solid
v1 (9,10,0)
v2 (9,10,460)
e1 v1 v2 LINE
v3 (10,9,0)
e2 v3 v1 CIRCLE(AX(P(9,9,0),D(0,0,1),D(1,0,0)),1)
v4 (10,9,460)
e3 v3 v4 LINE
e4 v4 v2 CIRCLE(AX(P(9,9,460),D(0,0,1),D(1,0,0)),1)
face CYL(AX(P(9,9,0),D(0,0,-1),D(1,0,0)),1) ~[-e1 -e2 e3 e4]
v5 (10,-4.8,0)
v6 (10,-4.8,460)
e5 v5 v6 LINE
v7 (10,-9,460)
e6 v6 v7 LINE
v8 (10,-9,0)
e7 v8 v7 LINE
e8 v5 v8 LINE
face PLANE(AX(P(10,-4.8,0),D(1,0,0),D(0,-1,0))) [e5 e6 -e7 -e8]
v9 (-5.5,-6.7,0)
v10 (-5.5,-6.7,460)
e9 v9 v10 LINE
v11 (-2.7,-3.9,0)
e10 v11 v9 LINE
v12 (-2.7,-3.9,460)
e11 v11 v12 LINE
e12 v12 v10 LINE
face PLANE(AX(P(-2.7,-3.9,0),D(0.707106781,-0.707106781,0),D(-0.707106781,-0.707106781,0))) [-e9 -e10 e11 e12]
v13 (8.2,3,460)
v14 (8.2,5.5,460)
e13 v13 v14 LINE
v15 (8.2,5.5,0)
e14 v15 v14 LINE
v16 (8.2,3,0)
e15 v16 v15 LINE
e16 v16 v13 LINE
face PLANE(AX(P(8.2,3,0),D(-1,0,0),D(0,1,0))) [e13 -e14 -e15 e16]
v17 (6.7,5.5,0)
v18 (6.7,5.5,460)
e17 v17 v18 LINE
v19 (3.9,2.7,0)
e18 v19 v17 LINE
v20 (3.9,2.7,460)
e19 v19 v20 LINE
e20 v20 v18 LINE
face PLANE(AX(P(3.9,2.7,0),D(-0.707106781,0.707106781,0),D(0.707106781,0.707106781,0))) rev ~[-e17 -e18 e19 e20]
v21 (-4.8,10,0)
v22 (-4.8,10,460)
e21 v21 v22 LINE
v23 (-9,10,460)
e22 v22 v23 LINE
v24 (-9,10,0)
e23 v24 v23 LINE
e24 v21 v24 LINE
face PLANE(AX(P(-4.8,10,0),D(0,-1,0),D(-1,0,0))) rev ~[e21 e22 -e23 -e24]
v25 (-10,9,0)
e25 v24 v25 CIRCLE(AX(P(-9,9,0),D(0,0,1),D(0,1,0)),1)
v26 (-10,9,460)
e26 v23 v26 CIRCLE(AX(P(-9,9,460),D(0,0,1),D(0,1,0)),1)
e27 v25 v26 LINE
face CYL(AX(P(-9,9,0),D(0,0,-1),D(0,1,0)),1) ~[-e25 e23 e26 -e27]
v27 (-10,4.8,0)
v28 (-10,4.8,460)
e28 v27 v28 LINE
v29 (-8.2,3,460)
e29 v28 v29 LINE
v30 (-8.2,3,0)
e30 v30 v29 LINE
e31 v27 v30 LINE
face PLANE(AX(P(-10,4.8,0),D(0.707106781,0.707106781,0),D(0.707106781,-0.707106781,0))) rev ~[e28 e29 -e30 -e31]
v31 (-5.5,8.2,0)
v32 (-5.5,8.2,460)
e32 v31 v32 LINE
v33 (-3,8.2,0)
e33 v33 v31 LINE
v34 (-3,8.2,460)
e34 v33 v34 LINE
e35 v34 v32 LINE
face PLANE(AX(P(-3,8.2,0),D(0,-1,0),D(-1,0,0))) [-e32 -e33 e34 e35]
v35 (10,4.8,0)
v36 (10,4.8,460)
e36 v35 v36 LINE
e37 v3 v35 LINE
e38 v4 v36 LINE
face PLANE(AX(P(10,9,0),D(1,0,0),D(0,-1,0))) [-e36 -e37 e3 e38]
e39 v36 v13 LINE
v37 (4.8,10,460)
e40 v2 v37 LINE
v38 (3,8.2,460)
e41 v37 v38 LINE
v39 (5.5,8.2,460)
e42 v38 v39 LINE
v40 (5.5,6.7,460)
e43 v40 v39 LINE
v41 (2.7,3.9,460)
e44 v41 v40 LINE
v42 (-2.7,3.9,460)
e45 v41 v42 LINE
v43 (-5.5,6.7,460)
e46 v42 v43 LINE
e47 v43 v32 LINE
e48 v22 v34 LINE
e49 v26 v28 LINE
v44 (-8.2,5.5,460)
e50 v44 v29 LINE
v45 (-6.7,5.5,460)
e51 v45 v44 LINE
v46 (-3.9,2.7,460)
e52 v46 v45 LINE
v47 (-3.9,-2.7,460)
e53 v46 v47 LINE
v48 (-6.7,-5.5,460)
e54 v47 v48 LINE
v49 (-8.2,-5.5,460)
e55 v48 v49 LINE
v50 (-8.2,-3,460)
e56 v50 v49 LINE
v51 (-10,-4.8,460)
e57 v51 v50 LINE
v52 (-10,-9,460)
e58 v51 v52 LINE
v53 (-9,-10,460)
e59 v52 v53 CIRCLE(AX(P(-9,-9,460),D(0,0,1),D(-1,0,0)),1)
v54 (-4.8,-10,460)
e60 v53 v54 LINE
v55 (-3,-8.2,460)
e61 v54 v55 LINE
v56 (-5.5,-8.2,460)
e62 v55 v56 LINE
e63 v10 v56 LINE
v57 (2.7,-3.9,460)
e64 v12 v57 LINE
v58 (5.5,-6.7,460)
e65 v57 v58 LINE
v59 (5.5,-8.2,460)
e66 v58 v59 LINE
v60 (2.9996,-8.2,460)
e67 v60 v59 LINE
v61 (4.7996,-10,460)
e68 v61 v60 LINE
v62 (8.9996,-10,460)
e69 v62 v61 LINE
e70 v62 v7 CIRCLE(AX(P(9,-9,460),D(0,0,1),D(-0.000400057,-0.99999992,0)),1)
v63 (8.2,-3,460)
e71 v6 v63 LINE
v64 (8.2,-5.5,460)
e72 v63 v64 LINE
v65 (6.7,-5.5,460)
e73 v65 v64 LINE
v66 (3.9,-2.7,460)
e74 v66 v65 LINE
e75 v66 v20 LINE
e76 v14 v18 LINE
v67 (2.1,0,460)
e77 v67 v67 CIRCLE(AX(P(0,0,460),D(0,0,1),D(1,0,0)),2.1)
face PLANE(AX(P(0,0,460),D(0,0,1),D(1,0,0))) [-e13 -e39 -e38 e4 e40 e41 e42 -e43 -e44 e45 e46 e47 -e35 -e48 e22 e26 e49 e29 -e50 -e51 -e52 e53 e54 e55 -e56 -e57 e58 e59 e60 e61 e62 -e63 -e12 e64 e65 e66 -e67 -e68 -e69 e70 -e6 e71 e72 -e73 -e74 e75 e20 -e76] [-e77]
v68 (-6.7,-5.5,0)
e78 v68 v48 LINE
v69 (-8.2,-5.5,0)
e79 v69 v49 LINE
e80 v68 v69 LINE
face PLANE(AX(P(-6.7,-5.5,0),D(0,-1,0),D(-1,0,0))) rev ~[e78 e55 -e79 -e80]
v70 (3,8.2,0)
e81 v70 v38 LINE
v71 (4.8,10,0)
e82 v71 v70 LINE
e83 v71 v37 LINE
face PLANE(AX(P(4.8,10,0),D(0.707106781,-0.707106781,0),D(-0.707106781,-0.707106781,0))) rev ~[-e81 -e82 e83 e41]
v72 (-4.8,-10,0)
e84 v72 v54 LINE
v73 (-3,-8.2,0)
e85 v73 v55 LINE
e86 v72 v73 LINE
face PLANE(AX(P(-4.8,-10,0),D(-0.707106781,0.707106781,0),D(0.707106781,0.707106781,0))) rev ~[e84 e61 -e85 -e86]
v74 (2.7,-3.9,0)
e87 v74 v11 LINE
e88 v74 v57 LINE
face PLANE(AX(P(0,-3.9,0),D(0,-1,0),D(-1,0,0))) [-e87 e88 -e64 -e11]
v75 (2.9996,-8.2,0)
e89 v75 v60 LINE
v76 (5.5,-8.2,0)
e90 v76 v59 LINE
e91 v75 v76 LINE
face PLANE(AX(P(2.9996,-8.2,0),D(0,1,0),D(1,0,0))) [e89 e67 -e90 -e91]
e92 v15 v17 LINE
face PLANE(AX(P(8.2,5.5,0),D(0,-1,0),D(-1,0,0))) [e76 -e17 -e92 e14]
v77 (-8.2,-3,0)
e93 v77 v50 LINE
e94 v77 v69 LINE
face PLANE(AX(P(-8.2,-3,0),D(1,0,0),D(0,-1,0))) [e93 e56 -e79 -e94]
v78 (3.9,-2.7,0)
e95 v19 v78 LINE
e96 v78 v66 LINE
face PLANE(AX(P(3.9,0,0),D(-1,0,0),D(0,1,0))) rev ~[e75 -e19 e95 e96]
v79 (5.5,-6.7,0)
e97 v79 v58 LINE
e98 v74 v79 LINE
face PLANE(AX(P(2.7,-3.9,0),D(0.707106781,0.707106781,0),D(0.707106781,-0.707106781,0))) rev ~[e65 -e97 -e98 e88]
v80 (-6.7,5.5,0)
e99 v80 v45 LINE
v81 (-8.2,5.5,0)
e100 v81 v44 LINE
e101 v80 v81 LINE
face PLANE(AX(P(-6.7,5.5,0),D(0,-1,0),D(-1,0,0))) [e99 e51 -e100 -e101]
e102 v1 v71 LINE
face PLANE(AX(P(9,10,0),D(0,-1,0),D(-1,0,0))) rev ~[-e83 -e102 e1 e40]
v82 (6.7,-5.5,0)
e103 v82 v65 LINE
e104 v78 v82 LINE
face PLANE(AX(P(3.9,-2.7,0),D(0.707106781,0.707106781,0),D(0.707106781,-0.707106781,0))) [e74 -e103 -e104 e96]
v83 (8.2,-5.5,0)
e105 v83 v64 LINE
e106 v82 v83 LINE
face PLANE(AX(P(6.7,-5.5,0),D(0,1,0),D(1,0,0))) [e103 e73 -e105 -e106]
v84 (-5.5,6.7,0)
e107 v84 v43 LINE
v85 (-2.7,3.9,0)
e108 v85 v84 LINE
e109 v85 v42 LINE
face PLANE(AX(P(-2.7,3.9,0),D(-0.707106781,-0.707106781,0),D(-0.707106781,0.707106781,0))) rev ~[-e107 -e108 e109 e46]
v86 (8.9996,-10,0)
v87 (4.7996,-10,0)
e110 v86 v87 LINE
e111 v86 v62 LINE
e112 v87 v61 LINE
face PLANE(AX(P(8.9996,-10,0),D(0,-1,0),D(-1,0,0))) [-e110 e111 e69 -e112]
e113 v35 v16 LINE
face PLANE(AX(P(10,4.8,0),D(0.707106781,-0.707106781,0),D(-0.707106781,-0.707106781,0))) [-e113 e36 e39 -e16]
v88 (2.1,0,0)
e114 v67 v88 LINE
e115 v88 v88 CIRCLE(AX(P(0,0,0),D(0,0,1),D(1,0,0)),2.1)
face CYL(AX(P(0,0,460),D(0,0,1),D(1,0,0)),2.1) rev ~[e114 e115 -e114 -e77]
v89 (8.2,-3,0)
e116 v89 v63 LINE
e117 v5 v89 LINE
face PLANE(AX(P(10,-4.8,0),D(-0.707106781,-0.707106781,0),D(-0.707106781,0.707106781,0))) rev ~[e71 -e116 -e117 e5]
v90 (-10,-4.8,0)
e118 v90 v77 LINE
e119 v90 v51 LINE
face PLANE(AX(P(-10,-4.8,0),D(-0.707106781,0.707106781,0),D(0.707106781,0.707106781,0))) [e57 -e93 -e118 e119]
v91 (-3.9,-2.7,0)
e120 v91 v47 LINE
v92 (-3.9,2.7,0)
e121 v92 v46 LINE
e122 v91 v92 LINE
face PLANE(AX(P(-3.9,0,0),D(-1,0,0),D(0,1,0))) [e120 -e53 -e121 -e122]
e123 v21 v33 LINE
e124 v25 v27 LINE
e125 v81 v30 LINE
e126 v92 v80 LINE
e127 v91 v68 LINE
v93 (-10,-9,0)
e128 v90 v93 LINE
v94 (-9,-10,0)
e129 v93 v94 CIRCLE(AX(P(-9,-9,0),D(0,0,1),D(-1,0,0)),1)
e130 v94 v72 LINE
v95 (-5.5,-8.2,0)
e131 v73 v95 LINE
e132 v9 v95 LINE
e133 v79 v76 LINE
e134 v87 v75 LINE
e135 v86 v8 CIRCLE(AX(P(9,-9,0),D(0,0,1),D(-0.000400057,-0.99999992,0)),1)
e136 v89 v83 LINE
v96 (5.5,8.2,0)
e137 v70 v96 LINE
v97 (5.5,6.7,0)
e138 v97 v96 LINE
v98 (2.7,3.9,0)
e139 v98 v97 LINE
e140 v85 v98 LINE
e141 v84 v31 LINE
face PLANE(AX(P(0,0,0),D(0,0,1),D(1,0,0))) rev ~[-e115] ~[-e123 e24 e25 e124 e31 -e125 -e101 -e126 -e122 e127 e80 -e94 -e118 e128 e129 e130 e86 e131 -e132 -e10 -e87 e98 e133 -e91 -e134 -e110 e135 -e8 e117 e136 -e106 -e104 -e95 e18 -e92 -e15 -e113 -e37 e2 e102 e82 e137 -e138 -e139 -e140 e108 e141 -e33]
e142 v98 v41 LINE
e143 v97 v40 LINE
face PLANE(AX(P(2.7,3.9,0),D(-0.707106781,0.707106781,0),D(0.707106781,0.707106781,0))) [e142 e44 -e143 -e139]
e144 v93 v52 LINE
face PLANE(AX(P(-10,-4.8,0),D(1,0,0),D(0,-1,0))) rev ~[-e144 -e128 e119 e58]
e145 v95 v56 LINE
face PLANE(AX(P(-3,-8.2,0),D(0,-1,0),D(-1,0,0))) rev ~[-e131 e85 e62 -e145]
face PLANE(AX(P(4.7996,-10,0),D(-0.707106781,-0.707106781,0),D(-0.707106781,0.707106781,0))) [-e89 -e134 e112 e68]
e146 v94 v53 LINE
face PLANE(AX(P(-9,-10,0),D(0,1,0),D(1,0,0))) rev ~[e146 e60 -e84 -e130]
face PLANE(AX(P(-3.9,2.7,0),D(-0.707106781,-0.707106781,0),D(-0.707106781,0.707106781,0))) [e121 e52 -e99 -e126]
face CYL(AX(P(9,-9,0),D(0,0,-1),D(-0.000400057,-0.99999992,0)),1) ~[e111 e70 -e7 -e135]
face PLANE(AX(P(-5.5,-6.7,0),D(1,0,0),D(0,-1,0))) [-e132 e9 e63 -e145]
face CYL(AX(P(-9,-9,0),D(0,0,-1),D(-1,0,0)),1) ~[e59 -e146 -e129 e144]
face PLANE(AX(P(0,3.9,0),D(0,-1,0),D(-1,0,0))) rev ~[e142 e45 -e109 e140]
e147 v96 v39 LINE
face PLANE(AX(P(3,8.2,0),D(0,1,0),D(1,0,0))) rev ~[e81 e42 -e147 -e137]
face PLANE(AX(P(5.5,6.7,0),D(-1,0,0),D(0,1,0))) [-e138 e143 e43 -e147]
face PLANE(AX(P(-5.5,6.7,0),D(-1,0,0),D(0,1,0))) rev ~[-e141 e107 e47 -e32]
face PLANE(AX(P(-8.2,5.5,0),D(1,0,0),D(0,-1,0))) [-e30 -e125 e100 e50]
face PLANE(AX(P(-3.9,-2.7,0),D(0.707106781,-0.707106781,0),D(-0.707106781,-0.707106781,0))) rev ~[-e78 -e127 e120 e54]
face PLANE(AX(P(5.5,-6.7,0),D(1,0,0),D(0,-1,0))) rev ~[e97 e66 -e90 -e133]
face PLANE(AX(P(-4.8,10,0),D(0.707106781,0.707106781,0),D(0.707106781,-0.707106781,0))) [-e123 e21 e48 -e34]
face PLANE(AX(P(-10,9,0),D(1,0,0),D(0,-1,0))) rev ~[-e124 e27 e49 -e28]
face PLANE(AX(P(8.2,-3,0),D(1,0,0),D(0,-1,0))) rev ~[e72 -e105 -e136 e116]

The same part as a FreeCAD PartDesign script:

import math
import FreeCAD as App
import Part
import Sketcher

V = App.Vector

doc = App.newDocument("Part")
body = doc.addObject("PartDesign::Body", "Body")

# Sketch on XY plane
sketch1 = body.newObject("Sketcher::SketchObject", "Sketch")
sketch1.AttachmentSupport = (doc.getObject("XY_Plane"), [""])
sketch1.MapMode = "FlatFace"
sketch1.addGeometry([
    Part.LineSegment(V(-3, 8.2, 0), V(-4.8, 10, 0)),  # 0
    Part.LineSegment(V(-4.8, 10, 0), V(-9, 10, 0)),  # 1
    Part.ArcOfCircle(Part.Circle(V(-9, 9, 0), V(0, 0, 1), 1), math.radians(90), math.radians(180)),  # 2
    Part.LineSegment(V(-10, 9, 0), V(-10, 4.8, 0)),  # 3
    Part.LineSegment(V(-10, 4.8, 0), V(-8.2, 3, 0)),  # 4
    Part.LineSegment(V(-8.2, 3, 0), V(-8.2, 5.5, 0)),  # 5
    Part.LineSegment(V(-8.2, 5.5, 0), V(-6.7, 5.5, 0)),  # 6
    Part.LineSegment(V(-6.7, 5.5, 0), V(-3.9, 2.7, 0)),  # 7
    Part.LineSegment(V(-3.9, 2.7, 0), V(-3.9, -2.7, 0)),  # 8
    Part.LineSegment(V(-3.9, -2.7, 0), V(-6.7, -5.5, 0)),  # 9
    Part.LineSegment(V(-6.7, -5.5, 0), V(-8.2, -5.5, 0)),  # 10
    Part.LineSegment(V(-8.2, -5.5, 0), V(-8.2, -3, 0)),  # 11
    Part.LineSegment(V(-8.2, -3, 0), V(-10, -4.8, 0)),  # 12
    Part.LineSegment(V(-10, -4.8, 0), V(-10, -9, 0)),  # 13
    Part.ArcOfCircle(Part.Circle(V(-9, -9, 0), V(0, 0, 1), 1), math.radians(180), math.radians(270)),  # 14
    Part.LineSegment(V(-9, -10, 0), V(-4.8, -10, 0)),  # 15
    Part.LineSegment(V(-4.8, -10, 0), V(-3, -8.2, 0)),  # 16
    Part.LineSegment(V(-3, -8.2, 0), V(-5.5, -8.2, 0)),  # 17
    Part.LineSegment(V(-5.5, -8.2, 0), V(-5.5, -6.7, 0)),  # 18
    Part.LineSegment(V(-5.5, -6.7, 0), V(-2.7, -3.9, 0)),  # 19
    Part.LineSegment(V(-2.7, -3.9, 0), V(2.7, -3.9, 0)),  # 20
    Part.LineSegment(V(2.7, -3.9, 0), V(5.5, -6.7, 0)),  # 21
    Part.LineSegment(V(5.5, -6.7, 0), V(5.5, -8.2, 0)),  # 22
    Part.LineSegment(V(5.5, -8.2, 0), V(3, -8.2, 0)),  # 23
    Part.LineSegment(V(3, -8.2, 0), V(4.8, -10, 0)),  # 24
    Part.LineSegment(V(4.8, -10, 0), V(9, -10, 0)),  # 25
    Part.ArcOfCircle(Part.Circle(V(9, -9, 0), V(0, 0, 1), 1), math.radians(-90), math.radians(0)),  # 26
    Part.LineSegment(V(10, -9, 0), V(10, -4.8, 0)),  # 27
    Part.LineSegment(V(10, -4.8, 0), V(8.2, -3, 0)),  # 28
    Part.LineSegment(V(8.2, -3, 0), V(8.2, -5.5, 0)),  # 29
    Part.LineSegment(V(8.2, -5.5, 0), V(6.7, -5.5, 0)),  # 30
    Part.LineSegment(V(6.7, -5.5, 0), V(3.9, -2.7, 0)),  # 31
    Part.LineSegment(V(3.9, -2.7, 0), V(3.9, 2.7, 0)),  # 32
    Part.LineSegment(V(3.9, 2.7, 0), V(6.7, 5.5, 0)),  # 33
    Part.LineSegment(V(6.7, 5.5, 0), V(8.2, 5.5, 0)),  # 34
    Part.LineSegment(V(8.2, 5.5, 0), V(8.2, 3, 0)),  # 35
    Part.LineSegment(V(8.2, 3, 0), V(10, 4.8, 0)),  # 36
    Part.LineSegment(V(10, 4.8, 0), V(10, 9, 0)),  # 37
    Part.ArcOfCircle(Part.Circle(V(9, 9, 0), V(0, 0, 1), 1), math.radians(0), math.radians(90)),  # 38
    Part.LineSegment(V(9, 10, 0), V(4.8, 10, 0)),  # 39
    Part.LineSegment(V(4.8, 10, 0), V(3, 8.2, 0)),  # 40
    Part.LineSegment(V(3, 8.2, 0), V(5.5, 8.2, 0)),  # 41
    Part.LineSegment(V(5.5, 8.2, 0), V(5.5, 6.7, 0)),  # 42
    Part.LineSegment(V(5.5, 6.7, 0), V(2.7, 3.9, 0)),  # 43
    Part.LineSegment(V(2.7, 3.9, 0), V(-2.7, 3.9, 0)),  # 44
    Part.LineSegment(V(-2.7, 3.9, 0), V(-5.5, 6.7, 0)),  # 45
    Part.LineSegment(V(-5.5, 6.7, 0), V(-5.5, 8.2, 0)),  # 46
    Part.LineSegment(V(-5.5, 8.2, 0), V(-3, 8.2, 0)),  # 47
], False)
sketch1.addConstraint([
    Sketcher.Constraint("Coincident", 0, 2, 1, 1),
    Sketcher.Constraint("Tangent", 1, 2, 2, 1),
    Sketcher.Constraint("Tangent", 2, 2, 3, 1),
    Sketcher.Constraint("Coincident", 3, 2, 4, 1),
    Sketcher.Constraint("Coincident", 4, 2, 5, 1),
    Sketcher.Constraint("Coincident", 5, 2, 6, 1),
    Sketcher.Constraint("Coincident", 6, 2, 7, 1),
    Sketcher.Constraint("Coincident", 7, 2, 8, 1),
    Sketcher.Constraint("Coincident", 8, 2, 9, 1),
    Sketcher.Constraint("Coincident", 9, 2, 10, 1),
    Sketcher.Constraint("Coincident", 10, 2, 11, 1),
    Sketcher.Constraint("Coincident", 11, 2, 12, 1),
    Sketcher.Constraint("Coincident", 12, 2, 13, 1),
    Sketcher.Constraint("Tangent", 13, 2, 14, 1),
    Sketcher.Constraint("Tangent", 14, 2, 15, 1),
    Sketcher.Constraint("Coincident", 15, 2, 16, 1),
    Sketcher.Constraint("Coincident", 16, 2, 17, 1),
    Sketcher.Constraint("Coincident", 17, 2, 18, 1),
    Sketcher.Constraint("Coincident", 18, 2, 19, 1),
    Sketcher.Constraint("Coincident", 19, 2, 20, 1),
    Sketcher.Constraint("Coincident", 20, 2, 21, 1),
    Sketcher.Constraint("Coincident", 21, 2, 22, 1),
    Sketcher.Constraint("Coincident", 22, 2, 23, 1),
    Sketcher.Constraint("Coincident", 23, 2, 24, 1),
    Sketcher.Constraint("Coincident", 24, 2, 25, 1),
    Sketcher.Constraint("Tangent", 25, 2, 26, 1),
    Sketcher.Constraint("Tangent", 26, 2, 27, 1),
    Sketcher.Constraint("Coincident", 27, 2, 28, 1),
    Sketcher.Constraint("Coincident", 28, 2, 29, 1),
    Sketcher.Constraint("Coincident", 29, 2, 30, 1),
    Sketcher.Constraint("Coincident", 30, 2, 31, 1),
    Sketcher.Constraint("Coincident", 31, 2, 32, 1),
    Sketcher.Constraint("Coincident", 32, 2, 33, 1),
    Sketcher.Constraint("Coincident", 33, 2, 34, 1),
    Sketcher.Constraint("Coincident", 34, 2, 35, 1),
    Sketcher.Constraint("Coincident", 35, 2, 36, 1),
    Sketcher.Constraint("Coincident", 36, 2, 37, 1),
    Sketcher.Constraint("Tangent", 37, 2, 38, 1),
    Sketcher.Constraint("Tangent", 38, 2, 39, 1),
    Sketcher.Constraint("Coincident", 39, 2, 40, 1),
    Sketcher.Constraint("Coincident", 40, 2, 41, 1),
    Sketcher.Constraint("Coincident", 41, 2, 42, 1),
    Sketcher.Constraint("Coincident", 42, 2, 43, 1),
    Sketcher.Constraint("Coincident", 43, 2, 44, 1),
    Sketcher.Constraint("Coincident", 44, 2, 45, 1),
    Sketcher.Constraint("Coincident", 45, 2, 46, 1),
    Sketcher.Constraint("Coincident", 46, 2, 47, 1),
    Sketcher.Constraint("Coincident", 47, 2, 0, 1),
    Sketcher.Constraint("Horizontal", 1),
    Sketcher.Constraint("Vertical", 3),
    Sketcher.Constraint("Vertical", 5),
    Sketcher.Constraint("Horizontal", 6),
    Sketcher.Constraint("Vertical", 8),
    Sketcher.Constraint("Horizontal", 10),
    Sketcher.Constraint("Vertical", 11),
    Sketcher.Constraint("Vertical", 13),
    Sketcher.Constraint("Horizontal", 15),
    Sketcher.Constraint("Horizontal", 17),
    Sketcher.Constraint("Vertical", 18),
    Sketcher.Constraint("Horizontal", 20),
    Sketcher.Constraint("Vertical", 22),
    Sketcher.Constraint("Horizontal", 23),
    Sketcher.Constraint("Horizontal", 25),
    Sketcher.Constraint("Vertical", 27),
    Sketcher.Constraint("Vertical", 29),
    Sketcher.Constraint("Horizontal", 30),
    Sketcher.Constraint("Vertical", 32),
    Sketcher.Constraint("Horizontal", 34),
    Sketcher.Constraint("Vertical", 35),
    Sketcher.Constraint("Vertical", 37),
    Sketcher.Constraint("Horizontal", 39),
    Sketcher.Constraint("Horizontal", 41),
    Sketcher.Constraint("Vertical", 42),
    Sketcher.Constraint("Horizontal", 44),
    Sketcher.Constraint("Vertical", 46),
    Sketcher.Constraint("Horizontal", 47),
    Sketcher.Constraint("Equal", 2, 14),
    Sketcher.Constraint("Equal", 14, 26),
    Sketcher.Constraint("Equal", 26, 38),
    Sketcher.Constraint("Symmetric", 2, 3, 26, 3, -1, 1),
    Sketcher.Constraint("Symmetric", 14, 3, 38, 3, -1, 1),
    Sketcher.Constraint("Symmetric", 4, 2, 28, 2, -1, 1),
    Sketcher.Constraint("Symmetric", 6, 2, 30, 2, -1, 1),
    Sketcher.Constraint("Symmetric", 7, 2, 31, 2, -1, 1),
    Sketcher.Constraint("Symmetric", 9, 2, 33, 2, -1, 1),
    Sketcher.Constraint("Symmetric", 11, 2, 35, 2, -1, 1),
    Sketcher.Constraint("Symmetric", 16, 2, 40, 2, -1, 1),
    Sketcher.Constraint("Symmetric", 18, 2, 42, 2, -1, 1),
    Sketcher.Constraint("Symmetric", 19, 2, 43, 2, -1, 1),
    Sketcher.Constraint("Symmetric", 21, 2, 45, 2, -1, 1),
    Sketcher.Constraint("Symmetric", 23, 2, 47, 2, -1, 1),
    Sketcher.Constraint("Symmetric", 14, 3, 26, 3, -2),
    Sketcher.Constraint("Symmetric", 18, 2, 21, 2, -2),
    Sketcher.Constraint("Symmetric", 16, 2, 23, 2, -2),
    Sketcher.Constraint("Symmetric", 11, 2, 28, 2, -2),
    Sketcher.Constraint("Symmetric", 9, 2, 30, 2, -2),
    Sketcher.Constraint("Parallel", 0, 4),
    Sketcher.Constraint("Parallel", 4, 7),
    Sketcher.Constraint("Perpendicular", 7, 9),
    Sketcher.Constraint("Parallel", 9, 12),
    Sketcher.Constraint("Parallel", 12, 16),
    Sketcher.Constraint("Parallel", 16, 19),
    Sketcher.Constraint("Perpendicular", 19, 21),
    Sketcher.Constraint("Parallel", 21, 24),
    Sketcher.Constraint("Parallel", 24, 28),
    Sketcher.Constraint("Perpendicular", 31, 33),
    Sketcher.Constraint("Parallel", 33, 36),
    Sketcher.Constraint("Parallel", 36, 40),
    Sketcher.Constraint("Perpendicular", 43, 45),
    Sketcher.Constraint("Horizontal", 12, 2, 27, 2),
    Sketcher.Constraint("Equal", 39, 3),
    Sketcher.Constraint("Equal", 47, 5),
    Sketcher.Constraint("Equal", 44, 8),
    Sketcher.Constraint("Equal", 34, 18),
    Sketcher.Constraint("Equal", 0, 4),
    Sketcher.Constraint("Equal", 9, 19),
    Sketcher.Constraint("Radius", 2, 1.0),
    Sketcher.Constraint("DistanceX", 1, 2, 1, 1, 4.2),
    Sketcher.Constraint("DistanceX", 6, 1, 6, 2, 1.5),
    Sketcher.Constraint("DistanceX", 17, 2, 17, 1, 2.5),
    Sketcher.Constraint("DistanceX", 2, 3, -1, 1, 9.0),
    Sketcher.Constraint("DistanceY", 4, 2, 2, 3, 6.0),
    Sketcher.Constraint("DistanceX", 7, 2, -1, 1, 3.9),
])
pad1 = body.newObject("PartDesign::Pad", "Pad")
pad1.Profile = sketch1
pad1.Length = 460

# Sketch on XY plane
sketch2 = body.newObject("Sketcher::SketchObject", "Sketch001")
sketch2.AttachmentSupport = (doc.getObject("XY_Plane"), [""])
sketch2.MapMode = "FlatFace"
sketch2.AttachmentOffset = App.Placement(V(0, 0, 460), App.Rotation())
sketch2.addGeometry(Part.Circle(V(0, 0, 0), V(0, 0, 1), 2.1), False)
sketch2.addConstraint([
    Sketcher.Constraint("Coincident", 0, 3, -1, 1),
    Sketcher.Constraint("Diameter", 0, 4.2),
])
pocket1 = body.newObject("PartDesign::Pocket", "Pocket")
pocket1.Profile = sketch2
pocket1.Type = "ThroughAll"

doc.recompute()
